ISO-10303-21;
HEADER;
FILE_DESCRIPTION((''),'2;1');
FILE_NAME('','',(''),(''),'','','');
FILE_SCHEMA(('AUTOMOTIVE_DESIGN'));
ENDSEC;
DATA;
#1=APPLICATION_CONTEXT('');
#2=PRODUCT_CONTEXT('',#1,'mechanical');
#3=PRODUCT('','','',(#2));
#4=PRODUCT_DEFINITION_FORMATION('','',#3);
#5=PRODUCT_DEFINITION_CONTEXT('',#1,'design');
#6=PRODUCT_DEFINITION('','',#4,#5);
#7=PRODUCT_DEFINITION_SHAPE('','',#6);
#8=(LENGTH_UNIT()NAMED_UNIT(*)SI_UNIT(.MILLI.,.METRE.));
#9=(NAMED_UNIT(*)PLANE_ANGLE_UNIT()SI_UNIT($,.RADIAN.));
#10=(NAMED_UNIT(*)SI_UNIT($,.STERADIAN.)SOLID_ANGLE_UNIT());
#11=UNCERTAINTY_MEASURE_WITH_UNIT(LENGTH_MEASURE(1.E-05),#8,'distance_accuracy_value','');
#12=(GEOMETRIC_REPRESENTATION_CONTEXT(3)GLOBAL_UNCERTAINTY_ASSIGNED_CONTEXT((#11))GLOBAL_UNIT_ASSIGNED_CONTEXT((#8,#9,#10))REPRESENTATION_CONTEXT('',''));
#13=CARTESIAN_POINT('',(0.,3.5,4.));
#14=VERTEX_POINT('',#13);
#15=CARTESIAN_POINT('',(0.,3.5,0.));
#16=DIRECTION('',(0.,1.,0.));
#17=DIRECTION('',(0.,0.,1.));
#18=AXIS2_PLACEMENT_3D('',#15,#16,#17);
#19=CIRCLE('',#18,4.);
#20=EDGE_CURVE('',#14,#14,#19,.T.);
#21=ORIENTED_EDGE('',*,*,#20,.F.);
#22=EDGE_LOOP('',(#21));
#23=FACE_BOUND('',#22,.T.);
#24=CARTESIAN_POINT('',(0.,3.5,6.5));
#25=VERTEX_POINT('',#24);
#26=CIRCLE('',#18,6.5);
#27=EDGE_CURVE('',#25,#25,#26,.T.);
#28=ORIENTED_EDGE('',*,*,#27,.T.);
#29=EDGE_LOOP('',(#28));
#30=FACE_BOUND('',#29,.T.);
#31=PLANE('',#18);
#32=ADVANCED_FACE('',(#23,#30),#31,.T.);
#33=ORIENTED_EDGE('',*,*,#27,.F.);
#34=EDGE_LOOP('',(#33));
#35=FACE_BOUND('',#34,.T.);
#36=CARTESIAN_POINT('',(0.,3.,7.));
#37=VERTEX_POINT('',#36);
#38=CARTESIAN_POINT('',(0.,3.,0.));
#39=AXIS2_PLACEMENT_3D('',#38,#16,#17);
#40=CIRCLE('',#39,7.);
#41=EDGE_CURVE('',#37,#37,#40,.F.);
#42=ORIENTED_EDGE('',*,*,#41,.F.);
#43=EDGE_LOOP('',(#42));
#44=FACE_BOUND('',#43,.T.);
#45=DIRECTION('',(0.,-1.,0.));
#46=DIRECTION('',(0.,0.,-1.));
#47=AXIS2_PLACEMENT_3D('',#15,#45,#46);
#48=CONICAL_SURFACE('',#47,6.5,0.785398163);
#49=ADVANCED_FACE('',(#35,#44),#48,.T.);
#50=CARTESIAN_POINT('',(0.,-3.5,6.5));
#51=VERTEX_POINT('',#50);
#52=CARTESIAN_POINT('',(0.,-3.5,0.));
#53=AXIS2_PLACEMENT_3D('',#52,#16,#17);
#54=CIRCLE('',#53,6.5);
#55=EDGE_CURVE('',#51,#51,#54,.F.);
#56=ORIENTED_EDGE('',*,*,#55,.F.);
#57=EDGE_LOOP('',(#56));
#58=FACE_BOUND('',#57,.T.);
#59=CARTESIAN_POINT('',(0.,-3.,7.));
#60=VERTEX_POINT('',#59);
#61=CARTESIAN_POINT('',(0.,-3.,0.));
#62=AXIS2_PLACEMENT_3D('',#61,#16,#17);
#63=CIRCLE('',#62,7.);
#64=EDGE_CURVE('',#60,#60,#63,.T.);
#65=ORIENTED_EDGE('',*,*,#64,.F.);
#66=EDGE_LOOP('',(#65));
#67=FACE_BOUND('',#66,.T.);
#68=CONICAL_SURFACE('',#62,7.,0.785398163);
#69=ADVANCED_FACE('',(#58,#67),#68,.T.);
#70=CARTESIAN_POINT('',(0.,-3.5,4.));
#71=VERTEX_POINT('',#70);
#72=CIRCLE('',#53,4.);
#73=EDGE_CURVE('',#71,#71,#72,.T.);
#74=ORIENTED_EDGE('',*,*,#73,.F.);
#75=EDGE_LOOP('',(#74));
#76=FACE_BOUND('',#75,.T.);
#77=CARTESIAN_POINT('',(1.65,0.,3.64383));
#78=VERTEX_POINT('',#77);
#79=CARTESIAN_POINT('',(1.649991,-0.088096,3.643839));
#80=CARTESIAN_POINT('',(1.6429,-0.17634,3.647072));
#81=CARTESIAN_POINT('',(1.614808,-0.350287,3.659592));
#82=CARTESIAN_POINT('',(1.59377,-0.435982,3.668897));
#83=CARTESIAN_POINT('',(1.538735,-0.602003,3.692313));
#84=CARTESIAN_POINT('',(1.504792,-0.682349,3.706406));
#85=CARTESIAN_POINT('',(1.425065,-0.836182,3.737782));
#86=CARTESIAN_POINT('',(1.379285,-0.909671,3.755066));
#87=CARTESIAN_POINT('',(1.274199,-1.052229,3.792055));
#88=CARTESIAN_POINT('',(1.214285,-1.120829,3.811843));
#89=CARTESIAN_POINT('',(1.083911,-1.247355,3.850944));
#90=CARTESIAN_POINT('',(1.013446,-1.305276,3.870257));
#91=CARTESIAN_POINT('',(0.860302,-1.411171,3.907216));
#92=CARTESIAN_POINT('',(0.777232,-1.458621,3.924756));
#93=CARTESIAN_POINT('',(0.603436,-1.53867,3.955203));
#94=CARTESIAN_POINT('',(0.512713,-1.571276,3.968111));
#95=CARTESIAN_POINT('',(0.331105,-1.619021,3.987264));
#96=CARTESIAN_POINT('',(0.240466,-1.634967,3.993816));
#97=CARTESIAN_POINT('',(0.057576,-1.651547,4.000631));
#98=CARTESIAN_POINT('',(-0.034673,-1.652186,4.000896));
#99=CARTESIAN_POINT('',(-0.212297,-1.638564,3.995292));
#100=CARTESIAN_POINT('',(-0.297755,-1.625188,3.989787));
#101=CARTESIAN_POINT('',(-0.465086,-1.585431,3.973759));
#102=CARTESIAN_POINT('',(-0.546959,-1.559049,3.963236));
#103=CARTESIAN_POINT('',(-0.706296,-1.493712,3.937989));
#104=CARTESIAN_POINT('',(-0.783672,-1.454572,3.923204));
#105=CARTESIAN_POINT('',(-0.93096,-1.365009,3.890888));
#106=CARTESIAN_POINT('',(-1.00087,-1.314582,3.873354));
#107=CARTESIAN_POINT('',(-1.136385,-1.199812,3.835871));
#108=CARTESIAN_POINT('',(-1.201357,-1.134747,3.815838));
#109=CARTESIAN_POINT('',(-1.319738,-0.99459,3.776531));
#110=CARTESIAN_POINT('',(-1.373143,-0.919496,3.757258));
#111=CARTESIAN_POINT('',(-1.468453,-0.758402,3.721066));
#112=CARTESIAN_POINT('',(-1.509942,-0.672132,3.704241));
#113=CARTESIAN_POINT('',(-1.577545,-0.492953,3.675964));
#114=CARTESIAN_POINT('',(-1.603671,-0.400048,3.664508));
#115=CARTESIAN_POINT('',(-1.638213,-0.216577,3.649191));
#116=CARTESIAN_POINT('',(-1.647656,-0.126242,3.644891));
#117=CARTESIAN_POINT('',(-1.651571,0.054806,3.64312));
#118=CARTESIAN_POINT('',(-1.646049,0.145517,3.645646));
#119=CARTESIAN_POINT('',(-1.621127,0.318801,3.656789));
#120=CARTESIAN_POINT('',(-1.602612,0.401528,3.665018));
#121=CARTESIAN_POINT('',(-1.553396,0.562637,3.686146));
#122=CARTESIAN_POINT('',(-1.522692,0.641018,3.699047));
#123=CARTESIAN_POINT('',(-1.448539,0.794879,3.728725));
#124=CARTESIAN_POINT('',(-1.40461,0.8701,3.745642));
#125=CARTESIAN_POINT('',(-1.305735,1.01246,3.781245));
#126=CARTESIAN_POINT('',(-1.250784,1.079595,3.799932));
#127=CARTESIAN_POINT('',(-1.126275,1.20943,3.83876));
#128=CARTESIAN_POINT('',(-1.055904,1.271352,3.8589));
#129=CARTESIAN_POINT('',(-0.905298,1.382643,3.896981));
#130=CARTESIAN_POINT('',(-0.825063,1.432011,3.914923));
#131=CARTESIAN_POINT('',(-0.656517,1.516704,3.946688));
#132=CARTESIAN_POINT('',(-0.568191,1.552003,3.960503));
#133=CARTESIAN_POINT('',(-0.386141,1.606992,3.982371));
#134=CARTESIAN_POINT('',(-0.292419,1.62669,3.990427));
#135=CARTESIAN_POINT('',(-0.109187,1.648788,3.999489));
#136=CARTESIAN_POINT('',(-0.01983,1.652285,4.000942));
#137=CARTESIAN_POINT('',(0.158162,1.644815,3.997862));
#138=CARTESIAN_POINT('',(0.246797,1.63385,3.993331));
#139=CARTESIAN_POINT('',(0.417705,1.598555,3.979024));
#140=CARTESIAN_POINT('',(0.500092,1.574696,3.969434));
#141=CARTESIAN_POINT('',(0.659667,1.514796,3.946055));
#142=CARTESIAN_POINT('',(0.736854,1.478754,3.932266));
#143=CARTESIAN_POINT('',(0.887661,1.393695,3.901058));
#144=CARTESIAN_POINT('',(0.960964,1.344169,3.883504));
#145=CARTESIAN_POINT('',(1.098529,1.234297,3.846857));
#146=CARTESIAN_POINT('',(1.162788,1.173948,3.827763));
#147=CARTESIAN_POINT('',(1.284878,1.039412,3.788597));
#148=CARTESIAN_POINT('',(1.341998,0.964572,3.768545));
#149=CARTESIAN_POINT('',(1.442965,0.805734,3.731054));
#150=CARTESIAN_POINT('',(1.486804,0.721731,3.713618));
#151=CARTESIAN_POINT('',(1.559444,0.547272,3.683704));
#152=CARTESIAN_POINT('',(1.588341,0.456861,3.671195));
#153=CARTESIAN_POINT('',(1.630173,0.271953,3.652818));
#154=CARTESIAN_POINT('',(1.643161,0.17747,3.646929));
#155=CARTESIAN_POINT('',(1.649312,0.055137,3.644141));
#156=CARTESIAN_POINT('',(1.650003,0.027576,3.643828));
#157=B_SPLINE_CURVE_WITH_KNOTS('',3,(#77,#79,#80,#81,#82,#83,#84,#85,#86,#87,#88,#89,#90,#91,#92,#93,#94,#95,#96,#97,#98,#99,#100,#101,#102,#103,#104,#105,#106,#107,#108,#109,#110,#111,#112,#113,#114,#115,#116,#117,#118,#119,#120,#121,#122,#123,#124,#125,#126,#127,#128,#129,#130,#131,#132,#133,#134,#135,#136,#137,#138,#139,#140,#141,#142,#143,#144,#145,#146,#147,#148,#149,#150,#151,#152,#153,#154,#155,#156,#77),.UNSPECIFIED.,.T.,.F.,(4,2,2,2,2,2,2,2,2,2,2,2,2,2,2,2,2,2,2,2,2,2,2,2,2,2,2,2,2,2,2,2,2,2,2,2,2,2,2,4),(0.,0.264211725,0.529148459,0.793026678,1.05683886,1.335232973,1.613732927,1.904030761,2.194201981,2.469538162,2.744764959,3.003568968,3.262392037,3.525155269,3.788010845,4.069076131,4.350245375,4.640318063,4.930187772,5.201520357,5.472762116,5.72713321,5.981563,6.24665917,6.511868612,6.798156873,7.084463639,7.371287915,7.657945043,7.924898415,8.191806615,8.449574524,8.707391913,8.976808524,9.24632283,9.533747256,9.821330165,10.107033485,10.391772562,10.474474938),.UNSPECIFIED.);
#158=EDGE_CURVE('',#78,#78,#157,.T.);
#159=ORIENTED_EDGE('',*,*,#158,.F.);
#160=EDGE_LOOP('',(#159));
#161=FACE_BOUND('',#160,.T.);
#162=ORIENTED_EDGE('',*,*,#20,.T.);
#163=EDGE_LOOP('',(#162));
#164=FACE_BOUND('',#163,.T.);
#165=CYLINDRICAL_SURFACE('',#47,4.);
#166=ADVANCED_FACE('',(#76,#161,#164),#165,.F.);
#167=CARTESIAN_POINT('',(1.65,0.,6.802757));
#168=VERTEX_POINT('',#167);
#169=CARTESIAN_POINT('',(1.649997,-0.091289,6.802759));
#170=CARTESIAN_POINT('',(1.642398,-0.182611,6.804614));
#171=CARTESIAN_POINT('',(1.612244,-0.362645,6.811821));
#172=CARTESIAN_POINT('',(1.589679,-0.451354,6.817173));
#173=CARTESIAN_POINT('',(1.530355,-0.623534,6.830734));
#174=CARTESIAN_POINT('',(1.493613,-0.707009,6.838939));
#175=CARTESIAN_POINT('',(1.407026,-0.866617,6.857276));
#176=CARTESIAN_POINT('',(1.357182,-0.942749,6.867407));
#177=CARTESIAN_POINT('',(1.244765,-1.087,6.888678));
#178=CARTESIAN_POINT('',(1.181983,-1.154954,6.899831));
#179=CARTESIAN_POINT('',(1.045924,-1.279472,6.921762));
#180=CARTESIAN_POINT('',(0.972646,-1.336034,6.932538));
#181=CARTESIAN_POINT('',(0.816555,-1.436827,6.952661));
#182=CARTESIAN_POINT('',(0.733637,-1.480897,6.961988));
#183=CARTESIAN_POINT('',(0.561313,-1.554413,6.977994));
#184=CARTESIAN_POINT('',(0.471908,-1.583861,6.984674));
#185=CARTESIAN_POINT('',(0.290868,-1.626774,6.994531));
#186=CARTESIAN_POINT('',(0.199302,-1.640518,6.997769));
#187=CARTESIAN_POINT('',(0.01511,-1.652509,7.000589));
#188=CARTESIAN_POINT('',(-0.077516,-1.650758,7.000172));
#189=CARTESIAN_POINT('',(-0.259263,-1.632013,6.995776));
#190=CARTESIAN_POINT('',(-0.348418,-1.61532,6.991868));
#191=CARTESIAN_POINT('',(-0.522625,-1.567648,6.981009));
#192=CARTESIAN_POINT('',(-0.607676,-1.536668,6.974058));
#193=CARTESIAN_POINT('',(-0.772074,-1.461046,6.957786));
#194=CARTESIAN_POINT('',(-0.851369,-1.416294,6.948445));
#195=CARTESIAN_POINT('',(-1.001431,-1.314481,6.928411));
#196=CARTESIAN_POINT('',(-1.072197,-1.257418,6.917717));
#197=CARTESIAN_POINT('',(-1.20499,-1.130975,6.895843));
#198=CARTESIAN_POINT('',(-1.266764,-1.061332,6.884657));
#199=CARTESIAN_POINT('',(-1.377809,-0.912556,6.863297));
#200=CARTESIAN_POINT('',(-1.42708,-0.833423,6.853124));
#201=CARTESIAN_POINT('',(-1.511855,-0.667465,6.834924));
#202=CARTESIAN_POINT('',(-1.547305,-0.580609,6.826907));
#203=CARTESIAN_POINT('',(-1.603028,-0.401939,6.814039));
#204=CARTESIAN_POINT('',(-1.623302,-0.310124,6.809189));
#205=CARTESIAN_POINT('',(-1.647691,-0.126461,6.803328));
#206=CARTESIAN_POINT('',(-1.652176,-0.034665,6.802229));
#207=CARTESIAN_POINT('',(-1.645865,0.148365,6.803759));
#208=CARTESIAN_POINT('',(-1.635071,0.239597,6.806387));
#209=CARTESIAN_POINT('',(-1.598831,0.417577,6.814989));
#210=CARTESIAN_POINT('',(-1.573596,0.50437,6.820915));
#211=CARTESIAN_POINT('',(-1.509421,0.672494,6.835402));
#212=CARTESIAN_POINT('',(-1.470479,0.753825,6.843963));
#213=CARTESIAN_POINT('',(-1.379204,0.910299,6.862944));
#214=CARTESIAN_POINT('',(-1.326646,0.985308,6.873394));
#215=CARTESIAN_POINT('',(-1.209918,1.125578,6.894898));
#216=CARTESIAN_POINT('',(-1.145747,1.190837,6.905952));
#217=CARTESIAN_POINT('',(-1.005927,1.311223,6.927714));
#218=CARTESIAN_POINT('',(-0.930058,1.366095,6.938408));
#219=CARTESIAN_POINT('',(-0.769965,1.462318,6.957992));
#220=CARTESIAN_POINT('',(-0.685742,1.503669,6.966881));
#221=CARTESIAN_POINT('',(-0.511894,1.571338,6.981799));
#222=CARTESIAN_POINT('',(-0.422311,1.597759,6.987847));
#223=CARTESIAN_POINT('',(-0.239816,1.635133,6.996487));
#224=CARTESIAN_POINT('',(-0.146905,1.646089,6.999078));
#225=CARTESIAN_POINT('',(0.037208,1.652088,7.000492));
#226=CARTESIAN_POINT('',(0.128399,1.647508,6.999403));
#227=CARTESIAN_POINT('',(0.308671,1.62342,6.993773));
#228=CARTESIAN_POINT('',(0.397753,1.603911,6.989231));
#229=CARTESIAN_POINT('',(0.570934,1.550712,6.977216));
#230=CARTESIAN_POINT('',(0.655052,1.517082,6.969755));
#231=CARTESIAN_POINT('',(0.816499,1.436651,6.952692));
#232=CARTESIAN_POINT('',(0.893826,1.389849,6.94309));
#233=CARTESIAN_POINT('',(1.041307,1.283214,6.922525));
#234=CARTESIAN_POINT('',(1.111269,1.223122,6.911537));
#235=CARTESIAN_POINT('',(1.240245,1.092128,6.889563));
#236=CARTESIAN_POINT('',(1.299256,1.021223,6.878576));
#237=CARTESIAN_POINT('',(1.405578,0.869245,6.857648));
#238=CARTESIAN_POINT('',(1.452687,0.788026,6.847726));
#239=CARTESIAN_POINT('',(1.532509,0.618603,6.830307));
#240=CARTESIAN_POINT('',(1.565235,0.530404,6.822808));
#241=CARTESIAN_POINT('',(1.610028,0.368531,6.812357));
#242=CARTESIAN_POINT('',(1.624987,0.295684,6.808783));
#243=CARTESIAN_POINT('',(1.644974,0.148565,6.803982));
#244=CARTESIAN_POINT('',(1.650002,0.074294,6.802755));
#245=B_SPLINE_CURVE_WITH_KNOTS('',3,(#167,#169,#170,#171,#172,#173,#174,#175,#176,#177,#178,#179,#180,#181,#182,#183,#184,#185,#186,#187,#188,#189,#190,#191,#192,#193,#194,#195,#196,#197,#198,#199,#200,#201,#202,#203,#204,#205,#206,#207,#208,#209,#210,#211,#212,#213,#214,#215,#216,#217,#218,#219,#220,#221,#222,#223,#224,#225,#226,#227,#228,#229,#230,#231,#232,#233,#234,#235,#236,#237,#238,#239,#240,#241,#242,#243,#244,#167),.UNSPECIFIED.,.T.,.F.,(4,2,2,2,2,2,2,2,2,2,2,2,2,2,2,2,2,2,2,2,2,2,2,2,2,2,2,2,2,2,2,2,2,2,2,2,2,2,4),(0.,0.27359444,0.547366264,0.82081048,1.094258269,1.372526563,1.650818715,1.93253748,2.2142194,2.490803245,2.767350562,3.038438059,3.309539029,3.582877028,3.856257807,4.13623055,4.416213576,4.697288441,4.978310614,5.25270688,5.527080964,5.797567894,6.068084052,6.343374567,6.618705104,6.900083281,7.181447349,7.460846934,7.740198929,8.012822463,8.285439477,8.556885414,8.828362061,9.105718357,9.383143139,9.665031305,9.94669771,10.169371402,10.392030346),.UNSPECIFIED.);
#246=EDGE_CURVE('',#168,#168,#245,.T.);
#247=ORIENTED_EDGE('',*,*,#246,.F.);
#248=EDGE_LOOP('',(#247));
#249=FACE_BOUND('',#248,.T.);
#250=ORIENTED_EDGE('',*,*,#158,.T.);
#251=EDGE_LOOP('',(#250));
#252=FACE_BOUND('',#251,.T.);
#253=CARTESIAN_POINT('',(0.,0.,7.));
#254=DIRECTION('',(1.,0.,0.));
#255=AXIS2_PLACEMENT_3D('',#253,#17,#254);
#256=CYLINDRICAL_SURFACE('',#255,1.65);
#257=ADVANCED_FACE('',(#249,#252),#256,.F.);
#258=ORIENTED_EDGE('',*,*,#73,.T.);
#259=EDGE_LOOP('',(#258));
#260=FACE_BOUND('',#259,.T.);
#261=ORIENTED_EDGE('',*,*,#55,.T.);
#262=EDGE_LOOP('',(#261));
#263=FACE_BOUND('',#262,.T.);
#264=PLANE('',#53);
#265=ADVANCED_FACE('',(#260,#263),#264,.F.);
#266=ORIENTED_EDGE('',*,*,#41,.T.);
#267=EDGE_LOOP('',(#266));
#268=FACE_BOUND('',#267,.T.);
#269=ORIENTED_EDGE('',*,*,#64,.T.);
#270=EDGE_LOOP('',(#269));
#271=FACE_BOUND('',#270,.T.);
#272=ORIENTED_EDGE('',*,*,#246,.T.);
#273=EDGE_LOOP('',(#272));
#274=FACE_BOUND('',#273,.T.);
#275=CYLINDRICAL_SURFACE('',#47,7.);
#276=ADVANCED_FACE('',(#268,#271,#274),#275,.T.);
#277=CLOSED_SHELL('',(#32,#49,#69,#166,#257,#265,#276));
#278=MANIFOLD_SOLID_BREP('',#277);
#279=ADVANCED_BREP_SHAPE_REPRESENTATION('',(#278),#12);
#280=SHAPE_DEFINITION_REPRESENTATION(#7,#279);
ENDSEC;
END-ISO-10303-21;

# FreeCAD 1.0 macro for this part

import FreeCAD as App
import Part
import Sketcher
from FreeCAD import Vector


def edges_at(feature, points):
    """Names of the edges that pass closest to the given points."""
    edges = feature.Shape.Edges
    near = lambda p: min(range(len(edges)), key=lambda i: edges[i].distToShape(Part.Vertex(*p))[0])
    return sorted({f"Edge{near(p) + 1}" for p in points})

doc = App.newDocument("Part")
body = doc.addObject("PartDesign::Body", "Body")

# Sketch on XZ plane
sketch1 = body.newObject("Sketcher::SketchObject", "Sketch")
sketch1.AttachmentSupport = (doc.getObject("XZ_Plane"), [""])
sketch1.MapMode = "FlatFace"
sketch1.addGeometry([
    Part.Circle(Vector(0, 0, 0), Vector(0, 0, 1), 7),
    Part.Circle(Vector(0, 0, 0), Vector(0, 0, 1), 4),
], False)
sketch1.addConstraint([
    Sketcher.Constraint("Coincident", 0, 3, -1, 1),
    Sketcher.Constraint("Coincident", 1, 3, -1, 1),
    Sketcher.Constraint("Diameter", 0, 14.0),
    Sketcher.Constraint("Diameter", 1, 8.0),
])
pad1 = body.newObject("PartDesign::Pad", "Pad")
pad1.Profile = sketch1
pad1.Length = 7
pad1.Midplane = True

# Sketch on XY plane
sketch2 = body.newObject("Sketcher::SketchObject", "Sketch001")
sketch2.AttachmentSupport = (doc.getObject("XY_Plane"), [""])
sketch2.MapMode = "FlatFace"
sketch2.AttachmentOffset = App.Placement(Vector(0, 0, 7), App.Rotation())
sketch2.addGeometry(Part.Circle(Vector(0, 0, 0), Vector(0, 0, 1), 1.6), False)
sketch2.addConstraint([
    Sketcher.Constraint("Coincident", 0, 3, -1, 1),
    Sketcher.Constraint("Diameter", 0, 3.3),
])
pocket1 = body.newObject("PartDesign::Pocket", "Pocket")
pocket1.Profile = sketch2
pocket1.Type = "UpToFirst"
doc.recompute()

chamfer = body.newObject("PartDesign::Chamfer", "Chamfer")
chamfer.Base = (pocket1, edges_at(pocket1, [(0, -3.5, -7), (0, 3.5, -7)]))
chamfer.Size = 0.5

doc.recompute()
